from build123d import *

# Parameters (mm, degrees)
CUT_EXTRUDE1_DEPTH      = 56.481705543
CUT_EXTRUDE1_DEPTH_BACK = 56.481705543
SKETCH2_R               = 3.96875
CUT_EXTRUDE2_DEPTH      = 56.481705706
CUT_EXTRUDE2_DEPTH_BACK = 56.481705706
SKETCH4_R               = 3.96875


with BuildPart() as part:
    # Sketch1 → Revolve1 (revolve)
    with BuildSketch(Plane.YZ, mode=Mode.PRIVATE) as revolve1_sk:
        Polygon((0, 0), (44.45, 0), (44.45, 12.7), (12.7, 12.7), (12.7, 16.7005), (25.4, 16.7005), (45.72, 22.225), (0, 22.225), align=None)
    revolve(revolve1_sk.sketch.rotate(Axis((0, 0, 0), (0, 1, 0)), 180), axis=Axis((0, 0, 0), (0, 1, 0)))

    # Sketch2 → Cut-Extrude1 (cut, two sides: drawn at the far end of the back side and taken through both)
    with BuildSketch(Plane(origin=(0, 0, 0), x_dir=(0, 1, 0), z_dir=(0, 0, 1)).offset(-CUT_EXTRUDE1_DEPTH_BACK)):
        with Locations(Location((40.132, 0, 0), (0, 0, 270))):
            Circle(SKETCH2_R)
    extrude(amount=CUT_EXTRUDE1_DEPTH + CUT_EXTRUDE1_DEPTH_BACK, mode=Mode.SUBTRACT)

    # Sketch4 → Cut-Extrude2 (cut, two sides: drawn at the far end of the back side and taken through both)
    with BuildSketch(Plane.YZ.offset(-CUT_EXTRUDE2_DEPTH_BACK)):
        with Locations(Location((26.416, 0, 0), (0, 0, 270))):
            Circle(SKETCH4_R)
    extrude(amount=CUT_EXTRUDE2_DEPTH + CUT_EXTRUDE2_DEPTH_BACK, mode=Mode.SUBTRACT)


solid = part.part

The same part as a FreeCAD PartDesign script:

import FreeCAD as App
import Part
import Sketcher
from FreeCAD import Vector
Q = App.Units.Quantity


def add_polygon(sketch, points):
    """Adds a closed chain of lines whose ends are joined by coincident constraints."""
    first, n = sketch.GeometryCount, len(points)
    for a, b in zip(points, points[1:] + points[:1]):
        sketch.addGeometry(Part.LineSegment(App.Vector(*a, 0), App.Vector(*b, 0)), False)
    for i in range(n):
        sketch.addConstraint(Sketcher.Constraint("Coincident", first + i, 2, first + (i + 1) % n, 1))

doc = App.newDocument("Part")
body = doc.addObject("PartDesign::Body", "Body")

# Sketch on YZ plane
sketch1 = body.newObject("Sketcher::SketchObject", "Sketch")
sketch1.AttachmentSupport = (doc.getObject("YZ_Plane"), [""])
sketch1.MapMode = "FlatFace"
add_polygon(sketch1, [(0, 0), (44.5, 0), (44.5, 12.7), (12.7, 12.7), (12.7, 16.7), (25.4, 16.7), (45.7, 22.2), (0, 22.2)])  # lines 0-7
sketch1.addConstraint([
    Sketcher.Constraint("Horizontal", 0),
    Sketcher.Constraint("Vertical", 1),
    Sketcher.Constraint("Horizontal", 2),
    Sketcher.Constraint("Vertical", 3),
    Sketcher.Constraint("Horizontal", 4),
    Sketcher.Constraint("Horizontal", 6),
    Sketcher.Constraint("Vertical", 7),
    Sketcher.Constraint("Coincident", 7, 2, -1, 1),
    Sketcher.Constraint("Equal", 4, 1),
    Sketcher.Constraint("DistanceX", 4, 1, 4, 2, Q("0.5 in")),
    Sketcher.Constraint("DistanceX", 6, 2, 6, 1, Q("1.8 in")),
    Sketcher.Constraint("DistanceX", -1, 1, 4, 2, Q("1 in")),
    Sketcher.Constraint("DistanceX", 0, 1, 0, 2, Q("1.75 in")),
    Sketcher.Constraint("DistanceY", 7, 2, 7, 1, Q("0.875 in")),
    Sketcher.Constraint("DistanceY", 3, 1, 3, 2, Q("0.1575 in")),
])
revolution = body.newObject("PartDesign::Revolution", "Revolution")
revolution.Profile = sketch1
revolution.ReferenceAxis = (sketch1, ["H_Axis"])
revolution.Angle = 360

# Sketch on XY plane
sketch2 = body.newObject("Sketcher::SketchObject", "Sketch001")
sketch2.AttachmentSupport = (doc.getObject("XY_Plane"), [""])
sketch2.MapMode = "FlatFace"
sketch2.addGeometry(Part.Circle(Vector(0, 40.1, 0), Vector(0, 0, 1), 4), False)
sketch2.addConstraint([
    Sketcher.Constraint("PointOnObject", 0, 3, -2),
    Sketcher.Constraint("Diameter", 0, Q("0.3125 in")),
    Sketcher.Constraint("DistanceY", -1, 1, 0, 3, Q("1.58 in")),
])
pocket1 = body.newObject("PartDesign::Pocket", "Pocket")
pocket1.Profile = sketch2
pocket1.Type = "ThroughAll"
pocket1.Midplane = True

# Sketch on YZ plane
sketch3 = body.newObject("Sketcher::SketchObject", "Sketch002")
sketch3.AttachmentSupport = (doc.getObject("YZ_Plane"), [""])
sketch3.MapMode = "FlatFace"
sketch3.addGeometry(Part.Circle(Vector(26.4, 0, 0), Vector(0, 0, 1), 4), False)
sketch3.addConstraint([
    Sketcher.Constraint("PointOnObject", 0, 3, -1),
    Sketcher.Constraint("Diameter", 0, Q("0.3125 in")),
    Sketcher.Constraint("DistanceX", -1, 1, 0, 3, Q("1.04 in")),
])
pocket2 = body.newObject("PartDesign::Pocket", "Pocket001")
pocket2.Profile = sketch3
pocket2.Type = "ThroughAll"
pocket2.Midplane = True

doc.recompute()
